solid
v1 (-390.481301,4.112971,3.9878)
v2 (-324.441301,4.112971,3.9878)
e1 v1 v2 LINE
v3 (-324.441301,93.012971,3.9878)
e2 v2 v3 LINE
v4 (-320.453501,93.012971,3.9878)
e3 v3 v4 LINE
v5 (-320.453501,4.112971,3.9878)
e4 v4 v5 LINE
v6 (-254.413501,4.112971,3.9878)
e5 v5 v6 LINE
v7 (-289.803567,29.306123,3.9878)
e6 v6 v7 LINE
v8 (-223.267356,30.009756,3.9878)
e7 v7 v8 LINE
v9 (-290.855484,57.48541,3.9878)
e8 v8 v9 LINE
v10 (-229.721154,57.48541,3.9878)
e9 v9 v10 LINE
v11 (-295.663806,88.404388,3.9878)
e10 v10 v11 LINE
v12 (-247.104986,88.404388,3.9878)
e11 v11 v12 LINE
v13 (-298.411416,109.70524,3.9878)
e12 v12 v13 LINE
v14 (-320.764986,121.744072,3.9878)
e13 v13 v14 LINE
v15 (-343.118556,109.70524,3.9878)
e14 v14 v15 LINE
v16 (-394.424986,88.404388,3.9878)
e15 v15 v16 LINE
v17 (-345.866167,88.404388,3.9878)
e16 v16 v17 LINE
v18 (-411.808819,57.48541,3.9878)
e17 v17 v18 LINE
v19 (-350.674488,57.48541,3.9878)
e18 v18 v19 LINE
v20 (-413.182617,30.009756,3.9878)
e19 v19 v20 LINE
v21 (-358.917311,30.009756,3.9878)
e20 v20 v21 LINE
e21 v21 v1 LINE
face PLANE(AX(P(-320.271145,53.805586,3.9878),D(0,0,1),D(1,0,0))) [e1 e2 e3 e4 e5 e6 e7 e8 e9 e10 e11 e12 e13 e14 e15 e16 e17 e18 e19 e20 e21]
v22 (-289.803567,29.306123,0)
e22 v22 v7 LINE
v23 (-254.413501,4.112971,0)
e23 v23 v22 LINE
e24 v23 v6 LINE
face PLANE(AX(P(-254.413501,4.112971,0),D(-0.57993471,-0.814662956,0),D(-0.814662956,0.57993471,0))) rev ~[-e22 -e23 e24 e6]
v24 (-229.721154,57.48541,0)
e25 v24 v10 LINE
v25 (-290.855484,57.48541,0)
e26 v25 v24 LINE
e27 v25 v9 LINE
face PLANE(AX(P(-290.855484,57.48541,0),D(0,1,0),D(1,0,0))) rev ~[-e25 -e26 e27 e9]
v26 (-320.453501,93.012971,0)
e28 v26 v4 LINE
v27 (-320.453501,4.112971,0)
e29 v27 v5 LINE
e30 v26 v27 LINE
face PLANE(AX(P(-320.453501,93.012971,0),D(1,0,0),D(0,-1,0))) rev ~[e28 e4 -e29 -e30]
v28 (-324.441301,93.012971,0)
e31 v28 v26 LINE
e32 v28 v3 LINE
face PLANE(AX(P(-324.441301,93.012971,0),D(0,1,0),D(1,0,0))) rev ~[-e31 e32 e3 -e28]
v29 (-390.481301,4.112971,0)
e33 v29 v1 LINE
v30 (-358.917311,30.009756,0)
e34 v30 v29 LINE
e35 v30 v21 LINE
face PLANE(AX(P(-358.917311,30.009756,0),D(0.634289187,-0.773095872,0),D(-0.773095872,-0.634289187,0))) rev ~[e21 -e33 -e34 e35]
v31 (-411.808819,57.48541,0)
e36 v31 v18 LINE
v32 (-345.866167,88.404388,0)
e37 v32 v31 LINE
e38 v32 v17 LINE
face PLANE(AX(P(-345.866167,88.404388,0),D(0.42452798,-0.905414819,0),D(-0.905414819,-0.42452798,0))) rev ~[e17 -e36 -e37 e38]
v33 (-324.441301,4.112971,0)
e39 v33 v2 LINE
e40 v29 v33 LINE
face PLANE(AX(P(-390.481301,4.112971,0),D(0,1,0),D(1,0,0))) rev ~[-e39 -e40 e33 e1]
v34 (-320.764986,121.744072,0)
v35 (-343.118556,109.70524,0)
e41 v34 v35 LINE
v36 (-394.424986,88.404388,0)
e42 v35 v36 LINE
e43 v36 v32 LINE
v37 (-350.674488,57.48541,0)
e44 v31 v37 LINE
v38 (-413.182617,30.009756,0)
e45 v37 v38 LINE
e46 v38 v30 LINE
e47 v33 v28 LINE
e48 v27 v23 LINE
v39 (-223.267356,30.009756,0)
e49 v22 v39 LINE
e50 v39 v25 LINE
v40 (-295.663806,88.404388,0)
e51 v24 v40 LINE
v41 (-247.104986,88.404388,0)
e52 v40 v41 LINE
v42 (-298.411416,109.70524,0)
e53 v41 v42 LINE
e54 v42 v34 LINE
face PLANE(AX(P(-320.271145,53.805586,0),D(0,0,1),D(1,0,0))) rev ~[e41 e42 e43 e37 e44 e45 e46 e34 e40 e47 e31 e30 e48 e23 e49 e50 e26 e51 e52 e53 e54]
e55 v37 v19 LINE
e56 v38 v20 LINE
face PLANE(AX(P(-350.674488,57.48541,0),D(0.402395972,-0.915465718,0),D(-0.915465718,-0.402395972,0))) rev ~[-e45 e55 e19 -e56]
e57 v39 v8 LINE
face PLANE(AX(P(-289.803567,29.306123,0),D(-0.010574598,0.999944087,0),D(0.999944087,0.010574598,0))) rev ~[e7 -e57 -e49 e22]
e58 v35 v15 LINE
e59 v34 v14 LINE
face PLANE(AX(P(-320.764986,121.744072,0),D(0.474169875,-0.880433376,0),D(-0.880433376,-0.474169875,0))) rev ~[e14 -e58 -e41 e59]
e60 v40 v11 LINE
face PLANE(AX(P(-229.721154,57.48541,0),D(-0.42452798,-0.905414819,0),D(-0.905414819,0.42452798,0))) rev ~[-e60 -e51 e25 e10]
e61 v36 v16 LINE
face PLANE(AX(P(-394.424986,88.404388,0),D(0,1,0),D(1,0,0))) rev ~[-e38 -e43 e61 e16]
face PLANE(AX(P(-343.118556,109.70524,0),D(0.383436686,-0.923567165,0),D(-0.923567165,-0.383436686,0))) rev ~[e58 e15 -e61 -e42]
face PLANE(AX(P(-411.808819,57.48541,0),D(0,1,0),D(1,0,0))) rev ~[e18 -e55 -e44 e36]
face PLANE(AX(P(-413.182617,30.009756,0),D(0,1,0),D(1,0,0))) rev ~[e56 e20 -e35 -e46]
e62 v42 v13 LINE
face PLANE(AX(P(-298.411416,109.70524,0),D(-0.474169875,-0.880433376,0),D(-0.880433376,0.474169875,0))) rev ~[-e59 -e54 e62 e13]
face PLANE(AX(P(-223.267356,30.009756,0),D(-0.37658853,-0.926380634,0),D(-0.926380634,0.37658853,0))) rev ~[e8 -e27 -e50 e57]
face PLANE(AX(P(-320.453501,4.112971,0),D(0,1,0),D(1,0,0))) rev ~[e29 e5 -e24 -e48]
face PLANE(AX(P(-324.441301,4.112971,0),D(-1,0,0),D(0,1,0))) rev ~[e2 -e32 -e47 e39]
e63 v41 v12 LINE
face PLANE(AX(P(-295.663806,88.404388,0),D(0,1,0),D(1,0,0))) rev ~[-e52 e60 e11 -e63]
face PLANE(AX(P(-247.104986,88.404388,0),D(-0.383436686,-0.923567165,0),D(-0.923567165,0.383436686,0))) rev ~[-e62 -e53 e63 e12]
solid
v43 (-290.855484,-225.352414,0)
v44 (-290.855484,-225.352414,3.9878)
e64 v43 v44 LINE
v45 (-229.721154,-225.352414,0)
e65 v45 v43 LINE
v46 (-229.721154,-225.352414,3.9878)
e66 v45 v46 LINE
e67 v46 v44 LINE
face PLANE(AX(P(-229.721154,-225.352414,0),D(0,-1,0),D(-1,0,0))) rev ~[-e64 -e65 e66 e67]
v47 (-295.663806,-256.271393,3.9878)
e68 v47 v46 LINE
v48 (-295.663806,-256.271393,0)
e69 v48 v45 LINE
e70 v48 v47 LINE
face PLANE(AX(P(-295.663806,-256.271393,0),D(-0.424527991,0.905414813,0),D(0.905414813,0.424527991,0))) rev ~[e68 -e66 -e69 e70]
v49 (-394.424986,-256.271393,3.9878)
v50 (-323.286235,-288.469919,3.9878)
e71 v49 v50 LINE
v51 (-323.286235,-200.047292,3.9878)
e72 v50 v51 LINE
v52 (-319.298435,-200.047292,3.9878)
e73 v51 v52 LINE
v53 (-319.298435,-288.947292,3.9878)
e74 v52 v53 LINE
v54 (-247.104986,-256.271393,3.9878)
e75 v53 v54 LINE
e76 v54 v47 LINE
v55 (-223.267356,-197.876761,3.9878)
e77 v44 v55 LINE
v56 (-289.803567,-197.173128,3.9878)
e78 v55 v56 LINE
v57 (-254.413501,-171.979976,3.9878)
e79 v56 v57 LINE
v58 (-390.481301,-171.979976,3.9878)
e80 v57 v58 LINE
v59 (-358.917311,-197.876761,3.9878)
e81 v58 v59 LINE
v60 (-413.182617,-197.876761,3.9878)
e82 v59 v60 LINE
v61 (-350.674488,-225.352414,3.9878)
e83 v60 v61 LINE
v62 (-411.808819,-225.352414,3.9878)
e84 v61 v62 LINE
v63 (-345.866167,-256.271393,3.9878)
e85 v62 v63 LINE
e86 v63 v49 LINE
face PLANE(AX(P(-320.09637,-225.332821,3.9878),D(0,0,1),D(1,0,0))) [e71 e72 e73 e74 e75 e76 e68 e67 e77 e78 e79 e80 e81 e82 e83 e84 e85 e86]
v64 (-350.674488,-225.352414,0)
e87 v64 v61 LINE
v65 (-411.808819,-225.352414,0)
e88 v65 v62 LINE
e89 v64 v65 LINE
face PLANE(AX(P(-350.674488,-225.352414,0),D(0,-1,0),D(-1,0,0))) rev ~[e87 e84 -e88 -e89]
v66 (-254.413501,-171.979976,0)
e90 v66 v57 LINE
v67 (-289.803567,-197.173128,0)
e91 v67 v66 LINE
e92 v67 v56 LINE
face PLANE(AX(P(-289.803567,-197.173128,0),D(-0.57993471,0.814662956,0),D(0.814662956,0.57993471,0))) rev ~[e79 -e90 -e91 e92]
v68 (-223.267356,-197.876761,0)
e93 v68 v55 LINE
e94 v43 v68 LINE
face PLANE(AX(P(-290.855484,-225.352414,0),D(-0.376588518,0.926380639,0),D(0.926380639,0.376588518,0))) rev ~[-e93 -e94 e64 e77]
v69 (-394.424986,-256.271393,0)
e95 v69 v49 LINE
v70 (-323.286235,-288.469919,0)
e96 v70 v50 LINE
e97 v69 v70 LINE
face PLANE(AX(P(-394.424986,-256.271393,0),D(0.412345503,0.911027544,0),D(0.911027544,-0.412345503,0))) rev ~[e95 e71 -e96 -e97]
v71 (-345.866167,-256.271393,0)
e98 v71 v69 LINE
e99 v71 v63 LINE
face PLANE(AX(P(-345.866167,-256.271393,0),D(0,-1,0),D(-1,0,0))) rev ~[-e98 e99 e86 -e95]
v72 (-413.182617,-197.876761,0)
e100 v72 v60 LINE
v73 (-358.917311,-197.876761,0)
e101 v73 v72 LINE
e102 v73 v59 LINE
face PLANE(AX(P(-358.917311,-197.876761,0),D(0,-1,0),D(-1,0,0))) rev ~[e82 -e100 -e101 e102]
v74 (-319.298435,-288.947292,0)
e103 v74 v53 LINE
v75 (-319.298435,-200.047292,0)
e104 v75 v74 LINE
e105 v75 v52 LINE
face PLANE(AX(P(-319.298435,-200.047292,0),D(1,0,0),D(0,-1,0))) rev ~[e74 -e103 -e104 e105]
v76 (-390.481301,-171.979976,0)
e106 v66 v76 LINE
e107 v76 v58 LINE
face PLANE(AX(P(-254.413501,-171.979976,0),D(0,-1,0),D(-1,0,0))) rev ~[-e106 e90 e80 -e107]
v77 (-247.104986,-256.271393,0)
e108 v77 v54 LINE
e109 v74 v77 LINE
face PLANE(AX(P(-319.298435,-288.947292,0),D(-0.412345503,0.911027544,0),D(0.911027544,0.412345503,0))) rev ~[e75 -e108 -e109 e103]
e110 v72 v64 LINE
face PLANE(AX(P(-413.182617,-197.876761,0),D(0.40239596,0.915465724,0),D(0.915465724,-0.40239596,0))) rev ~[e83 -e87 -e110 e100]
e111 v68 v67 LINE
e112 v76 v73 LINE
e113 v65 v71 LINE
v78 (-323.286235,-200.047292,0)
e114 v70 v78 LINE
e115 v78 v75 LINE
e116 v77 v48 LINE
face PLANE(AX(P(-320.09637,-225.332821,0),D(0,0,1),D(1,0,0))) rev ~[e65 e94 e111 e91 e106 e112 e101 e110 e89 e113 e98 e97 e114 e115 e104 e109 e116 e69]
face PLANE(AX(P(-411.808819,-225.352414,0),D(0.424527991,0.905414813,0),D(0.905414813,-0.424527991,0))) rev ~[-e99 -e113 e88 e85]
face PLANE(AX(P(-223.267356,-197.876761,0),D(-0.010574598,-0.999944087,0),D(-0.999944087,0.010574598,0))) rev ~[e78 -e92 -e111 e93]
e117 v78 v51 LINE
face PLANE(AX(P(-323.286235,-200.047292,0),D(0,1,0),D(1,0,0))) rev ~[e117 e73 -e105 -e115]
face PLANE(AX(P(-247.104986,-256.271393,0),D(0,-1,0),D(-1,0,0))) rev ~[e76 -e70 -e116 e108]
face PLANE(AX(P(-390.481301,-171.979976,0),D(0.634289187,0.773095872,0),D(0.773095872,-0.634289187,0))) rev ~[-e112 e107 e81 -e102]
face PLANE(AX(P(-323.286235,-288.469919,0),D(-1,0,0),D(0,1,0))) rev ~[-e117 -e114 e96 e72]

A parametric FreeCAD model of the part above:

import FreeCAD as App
import Part
import Sketcher

V = App.Vector
Q = App.Units.Quantity

doc = App.newDocument("Part")
body = doc.addObject("PartDesign::Body", "Body")
body.AllowCompound = True

# Sketch on XY plane
sketch1 = body.newObject("Sketcher::SketchObject", "Sketch")
sketch1.AttachmentSupport = (doc.getObject("XY_Plane"), [""])
sketch1.MapMode = "FlatFace"
sketch1.addGeometry(Part.LineSegment(V(-295.663806, 88.404388, 0), V(-247.104986, 88.404388, 0)), False)
sketch1.addGeometry(Part.LineSegment(V(-247.104986, 88.404388, 0), V(-298.411416, 109.70524, 0)), False)
sketch1.addGeometry(Part.LineSegment(V(-298.411416, 109.70524, 0), V(-320.764986, 121.744072, 0)), False)
sketch1.addGeometry(Part.LineSegment(V(-320.764986, 121.744072, 0), V(-343.118556, 109.70524, 0)), False)
sketch1.addGeometry(Part.LineSegment(V(-343.118556, 109.70524, 0), V(-394.424986, 88.404388, 0)), False)
sketch1.addGeometry(Part.LineSegment(V(-394.424986, 88.404388, 0), V(-345.866167, 88.404388, 0)), False)
sketch1.addGeometry(Part.LineSegment(V(-345.866167, 88.404388, 0), V(-411.808819, 57.48541, 0)), False)
sketch1.addGeometry(Part.LineSegment(V(-411.808819, 57.48541, 0), V(-350.674488, 57.48541, 0)), False)
sketch1.addGeometry(Part.LineSegment(V(-350.674488, 57.48541, 0), V(-413.182617, 30.009756, 0)), False)
sketch1.addGeometry(Part.LineSegment(V(-413.182617, 30.009756, 0), V(-358.917311, 30.009756, 0)), False)
sketch1.addGeometry(Part.LineSegment(V(-358.917311, 30.009756, 0), V(-390.481301, 4.112971, 0)), False)
sketch1.addGeometry(Part.LineSegment(V(-390.481301, 4.112971, 0), V(-324.441301, 4.112971, 0)), False)
sketch1.addGeometry(Part.LineSegment(V(-324.441301, 4.112971, 0), V(-324.441301, 93.012971, 0)), False)
sketch1.addGeometry(Part.LineSegment(V(-324.441301, 93.012971, 0), V(-320.453501, 93.012971, 0)), False)
sketch1.addGeometry(Part.LineSegment(V(-320.453501, 93.012971, 0), V(-320.453501, 4.112971, 0)), False)
sketch1.addGeometry(Part.LineSegment(V(-320.453501, 4.112971, 0), V(-254.413501, 4.112971, 0)), False)
sketch1.addGeometry(Part.LineSegment(V(-254.413501, 4.112971, 0), V(-289.803567, 29.306123, 0)), False)
sketch1.addGeometry(Part.LineSegment(V(-289.803567, 29.306123, 0), V(-223.267356, 30.009756, 0)), False)
sketch1.addGeometry(Part.LineSegment(V(-223.267356, 30.009756, 0), V(-290.855484, 57.48541, 0)), False)
sketch1.addGeometry(Part.LineSegment(V(-290.855484, 57.48541, 0), V(-229.721154, 57.48541, 0)), False)
sketch1.addGeometry(Part.LineSegment(V(-229.721154, 57.48541, 0), V(-295.663806, 88.404388, 0)), False)
sketch1.addGeometry(Part.LineSegment(V(-411.808819, -225.352414, 0), V(-345.866167, -256.271393, 0)), False)
sketch1.addGeometry(Part.LineSegment(V(-345.866167, -256.271393, 0), V(-394.424986, -256.271393, 0)), False)
sketch1.addGeometry(Part.LineSegment(V(-394.424986, -256.271393, 0), V(-323.286235, -288.469919, 0)), False)
sketch1.addGeometry(Part.LineSegment(V(-323.286235, -288.469919, 0), V(-323.286235, -200.047292, 0)), False)
sketch1.addGeometry(Part.LineSegment(V(-323.286235, -200.047292, 0), V(-319.298435, -200.047292, 0)), False)
sketch1.addGeometry(Part.LineSegment(V(-319.298435, -200.047292, 0), V(-319.298435, -288.947292, 0)), False)
sketch1.addGeometry(Part.LineSegment(V(-319.298435, -288.947292, 0), V(-247.104986, -256.271393, 0)), False)
sketch1.addGeometry(Part.LineSegment(V(-247.104986, -256.271393, 0), V(-295.663806, -256.271393, 0)), False)
sketch1.addGeometry(Part.LineSegment(V(-295.663806, -256.271393, 0), V(-229.721154, -225.352414, 0)), False)
sketch1.addGeometry(Part.LineSegment(V(-229.721154, -225.352414, 0), V(-290.855484, -225.352414, 0)), False)
sketch1.addGeometry(Part.LineSegment(V(-290.855484, -225.352414, 0), V(-223.267356, -197.876761, 0)), False)
sketch1.addGeometry(Part.LineSegment(V(-223.267356, -197.876761, 0), V(-289.803567, -197.173128, 0)), False)
sketch1.addGeometry(Part.LineSegment(V(-289.803567, -197.173128, 0), V(-254.413501, -171.979976, 0)), False)
sketch1.addGeometry(Part.LineSegment(V(-254.413501, -171.979976, 0), V(-390.481301, -171.979976, 0)), False)
sketch1.addGeometry(Part.LineSegment(V(-390.481301, -171.979976, 0), V(-358.917311, -197.876761, 0)), False)
sketch1.addGeometry(Part.LineSegment(V(-358.917311, -197.876761, 0), V(-413.182617, -197.876761, 0)), False)
sketch1.addGeometry(Part.LineSegment(V(-413.182617, -197.876761, 0), V(-350.674488, -225.352414, 0)), False)
sketch1.addGeometry(Part.LineSegment(V(-350.674488, -225.352414, 0), V(-411.808819, -225.352414, 0)), False)
sketch1.addConstraint(Sketcher.Constraint("Coincident", 0, 2, 1, 1))
sketch1.addConstraint(Sketcher.Constraint("Coincident", 1, 2, 2, 1))
sketch1.addConstraint(Sketcher.Constraint("Coincident", 2, 2, 3, 1))
sketch1.addConstraint(Sketcher.Constraint("Coincident", 3, 2, 4, 1))
sketch1.addConstraint(Sketcher.Constraint("Coincident", 4, 2, 5, 1))
sketch1.addConstraint(Sketcher.Constraint("Coincident", 5, 2, 6, 1))
sketch1.addConstraint(Sketcher.Constraint("Coincident", 6, 2, 7, 1))
sketch1.addConstraint(Sketcher.Constraint("Coincident", 7, 2, 8, 1))
sketch1.addConstraint(Sketcher.Constraint("Coincident", 8, 2, 9, 1))
sketch1.addConstraint(Sketcher.Constraint("Coincident", 9, 2, 10, 1))
sketch1.addConstraint(Sketcher.Constraint("Coincident", 10, 2, 11, 1))
sketch1.addConstraint(Sketcher.Constraint("Coincident", 11, 2, 12, 1))
sketch1.addConstraint(Sketcher.Constraint("Coincident", 12, 2, 13, 1))
sketch1.addConstraint(Sketcher.Constraint("Coincident", 13, 2, 14, 1))
sketch1.addConstraint(Sketcher.Constraint("Coincident", 14, 2, 15, 1))
sketch1.addConstraint(Sketcher.Constraint("Coincident", 15, 2, 16, 1))
sketch1.addConstraint(Sketcher.Constraint("Coincident", 16, 2, 17, 1))
sketch1.addConstraint(Sketcher.Constraint("Coincident", 17, 2, 18, 1))
sketch1.addConstraint(Sketcher.Constraint("Coincident", 18, 2, 19, 1))
sketch1.addConstraint(Sketcher.Constraint("Coincident", 19, 2, 20, 1))
sketch1.addConstraint(Sketcher.Constraint("Coincident", 20, 2, 0, 1))
sketch1.addConstraint(Sketcher.Constraint("Coincident", 21, 2, 22, 1))
sketch1.addConstraint(Sketcher.Constraint("Coincident", 22, 2, 23, 1))
sketch1.addConstraint(Sketcher.Constraint("Coincident", 23, 2, 24, 1))
sketch1.addConstraint(Sketcher.Constraint("Coincident", 24, 2, 25, 1))
sketch1.addConstraint(Sketcher.Constraint("Coincident", 25, 2, 26, 1))
sketch1.addConstraint(Sketcher.Constraint("Coincident", 26, 2, 27, 1))
sketch1.addConstraint(Sketcher.Constraint("Coincident", 27, 2, 28, 1))
sketch1.addConstraint(Sketcher.Constraint("Coincident", 28, 2, 29, 1))
sketch1.addConstraint(Sketcher.Constraint("Coincident", 29, 2, 30, 1))
sketch1.addConstraint(Sketcher.Constraint("Coincident", 30, 2, 31, 1))
sketch1.addConstraint(Sketcher.Constraint("Coincident", 31, 2, 32, 1))
sketch1.addConstraint(Sketcher.Constraint("Coincident", 32, 2, 33, 1))
sketch1.addConstraint(Sketcher.Constraint("Coincident", 33, 2, 34, 1))
sketch1.addConstraint(Sketcher.Constraint("Coincident", 34, 2, 35, 1))
sketch1.addConstraint(Sketcher.Constraint("Coincident", 35, 2, 36, 1))
sketch1.addConstraint(Sketcher.Constraint("Coincident", 36, 2, 37, 1))
sketch1.addConstraint(Sketcher.Constraint("Coincident", 37, 2, 38, 1))
sketch1.addConstraint(Sketcher.Constraint("Coincident", 38, 2, 21, 1))
sketch1.addConstraint(Sketcher.Constraint("Horizontal", 0))
sketch1.addConstraint(Sketcher.Constraint("Horizontal", 5))
sketch1.addConstraint(Sketcher.Constraint("Horizontal", 7))
sketch1.addConstraint(Sketcher.Constraint("Horizontal", 9))
sketch1.addConstraint(Sketcher.Constraint("Horizontal", 11))
sketch1.addConstraint(Sketcher.Constraint("Vertical", 12))
sketch1.addConstraint(Sketcher.Constraint("Horizontal", 13))
sketch1.addConstraint(Sketcher.Constraint("Vertical", 14))
sketch1.addConstraint(Sketcher.Constraint("Horizontal", 15))
sketch1.addConstraint(Sketcher.Constraint("Horizontal", 19))
sketch1.addConstraint(Sketcher.Constraint("Horizontal", 22))
sketch1.addConstraint(Sketcher.Constraint("Vertical", 24))
sketch1.addConstraint(Sketcher.Constraint("Horizontal", 25))
sketch1.addConstraint(Sketcher.Constraint("Vertical", 26))
sketch1.addConstraint(Sketcher.Constraint("Horizontal", 28))
sketch1.addConstraint(Sketcher.Constraint("Horizontal", 30))
sketch1.addConstraint(Sketcher.Constraint("Horizontal", 34))
sketch1.addConstraint(Sketcher.Constraint("Horizontal", 36))
sketch1.addConstraint(Sketcher.Constraint("Horizontal", 38))
sketch1.addConstraint(Sketcher.Constraint("Parallel", 20, 21))
sketch1.addConstraint(Sketcher.Constraint("Parallel", 6, 29))
sketch1.addConstraint(Sketcher.Constraint("Horizontal", 1, 2, 3, 2))
sketch1.addConstraint(Sketcher.Constraint("Horizontal", 0, 2, 4, 2))
sketch1.addConstraint(Sketcher.Constraint("Horizontal", 11, 2, 14, 2))
sketch1.addConstraint(Sketcher.Constraint("Horizontal", 9, 2, 17, 2))
sketch1.addConstraint(Sketcher.Constraint("Horizontal", 7, 2, 18, 2))
sketch1.addConstraint(Sketcher.Constraint("Horizontal", 22, 2, 27, 2))
sketch1.addConstraint(Sketcher.Constraint("Horizontal", 31, 2, 35, 2))
sketch1.addConstraint(Sketcher.Constraint("Horizontal", 30, 2, 37, 2))
sketch1.addConstraint(Sketcher.Constraint("Vertical", 5, 2, 21, 2))
sketch1.addConstraint(Sketcher.Constraint("Vertical", 4, 2, 22, 2))
sketch1.addConstraint(Sketcher.Constraint("Vertical", 0, 2, 27, 2))
sketch1.addConstraint(Sketcher.Constraint("Vertical", 20, 2, 28, 2))
sketch1.addConstraint(Sketcher.Constraint("Vertical", 19, 2, 29, 2))
sketch1.addConstraint(Sketcher.Constraint("Vertical", 18, 2, 30, 2))
sketch1.addConstraint(Sketcher.Constraint("Vertical", 17, 2, 31, 2))
sketch1.addConstraint(Sketcher.Constraint("Vertical", 16, 2, 32, 2))
sketch1.addConstraint(Sketcher.Constraint("Vertical", 15, 2, 33, 2))
sketch1.addConstraint(Sketcher.Constraint("Vertical", 10, 2, 34, 2))
sketch1.addConstraint(Sketcher.Constraint("Vertical", 9, 2, 35, 2))
sketch1.addConstraint(Sketcher.Constraint("Vertical", 8, 2, 36, 2))
sketch1.addConstraint(Sketcher.Constraint("Vertical", 7, 2, 37, 2))
sketch1.addConstraint(Sketcher.Constraint("Vertical", 6, 2, 38, 2))
sketch1.addConstraint(Sketcher.Constraint("Equal", 0, 5))
sketch1.addConstraint(Sketcher.Constraint("Equal", 11, 15))
sketch1.addConstraint(Sketcher.Constraint("Equal", 7, 19))
sketch1.addConstraint(Sketcher.Constraint("Equal", 13, 25))
sketch1.addConstraint(Sketcher.Constraint("Equal", 14, 26))
sketch1.addConstraint(Sketcher.Constraint("Equal", 2, 3))
sketch1.addConstraint(Sketcher.Constraint("Equal", 1, 4))
sketch1.addConstraint(Sketcher.Constraint("Equal", 18, 31))
sketch1.addConstraint(Sketcher.Constraint("Equal", 17, 32))
sketch1.addConstraint(Sketcher.Constraint("Equal", 16, 33))
sketch1.addConstraint(Sketcher.Constraint("DistanceX", 11, 1, 11, 2, Q("2.6 in")))
sketch1.addConstraint(Sketcher.Constraint("DistanceY", 12, 1, 12, 2, Q("3.5 in")))
sketch1.addConstraint(Sketcher.Constraint("DistanceX", 2, 2, 0, 2, Q("2.9 in")))
sketch1.addConstraint(Sketcher.Constraint("DistanceX", 13, 1, 13, 2, Q("0.157 in")))
sketch1.addConstraint(Sketcher.Constraint("DistanceX", 0, 1, 0, 2, Q("48.55882 mm")))
sketch1.addConstraint(Sketcher.Constraint("DistanceX", 7, 1, 7, 2, Q("61.134331 mm")))
sketch1.addConstraint(Sketcher.Constraint("DistanceX", 10, 2, -1, 1, Q("390.481301 mm")))
sketch1.addConstraint(Sketcher.Constraint("DistanceX", 7, 2, 2, 2, Q("29.909502 mm")))
sketch1.addConstraint(Sketcher.Constraint("DistanceY", 12, 2, 2, 2, Q("28.731101 mm")))
sketch1.addConstraint(Sketcher.Constraint("DistanceX", 19, 2, 17, 2, Q("6.453798 mm")))
sketch1.addConstraint(Sketcher.Constraint("DistanceY", 21, 2, 24, 2, Q("56.224101 mm")))
sketch1.addConstraint(Sketcher.Constraint("Distance", 2, Q("25.389281 mm")))
sketch1.addConstraint(Sketcher.Constraint("Distance", 8, Q("68.280142 mm")))
sketch1.addConstraint(Sketcher.Constraint("Distance", 10, Q("40.828041 mm")))
sketch1.addConstraint(Sketcher.Constraint("Distance", 16, Q("43.441359 mm")))
sketch1.addConstraint(Sketcher.Constraint("Distance", 17, Q("66.539931 mm")))
sketch1.addConstraint(Sketcher.Constraint("Distance", 18, Q("72.959349 mm")))
sketch1.addConstraint(Sketcher.Constraint("Distance", 23, Q("78.086279 mm")))
sketch1.addConstraint(Sketcher.Constraint("Distance", 27, Q("79.243981 mm")))
sketch1.addConstraint(Sketcher.Constraint("DistanceX", 9, 1, 9, 2, Q("54.265306 mm")))
sketch1.addConstraint(Sketcher.Constraint("DistanceY", -1, 1, 1, 2, Q("109.70524 mm")))
sketch1.addConstraint(Sketcher.Constraint("DistanceX", 6, 2, -1, 1, Q("411.808819 mm")))
sketch1.addConstraint(Sketcher.Constraint("DistanceY", -1, 1, 6, 2, Q("57.48541 mm")))
sketch1.addConstraint(Sketcher.Constraint("DistanceY", 23, 2, -1, 1, Q("288.469919 mm")))
sketch1.addConstraint(Sketcher.Constraint("DistanceY", 31, 2, -1, 1, Q("197.876761 mm")))
pad1 = body.newObject("PartDesign::Pad", "Pad")
pad1.Profile = sketch1
pad1.Length = Q("0.157 in")

doc.recompute()
